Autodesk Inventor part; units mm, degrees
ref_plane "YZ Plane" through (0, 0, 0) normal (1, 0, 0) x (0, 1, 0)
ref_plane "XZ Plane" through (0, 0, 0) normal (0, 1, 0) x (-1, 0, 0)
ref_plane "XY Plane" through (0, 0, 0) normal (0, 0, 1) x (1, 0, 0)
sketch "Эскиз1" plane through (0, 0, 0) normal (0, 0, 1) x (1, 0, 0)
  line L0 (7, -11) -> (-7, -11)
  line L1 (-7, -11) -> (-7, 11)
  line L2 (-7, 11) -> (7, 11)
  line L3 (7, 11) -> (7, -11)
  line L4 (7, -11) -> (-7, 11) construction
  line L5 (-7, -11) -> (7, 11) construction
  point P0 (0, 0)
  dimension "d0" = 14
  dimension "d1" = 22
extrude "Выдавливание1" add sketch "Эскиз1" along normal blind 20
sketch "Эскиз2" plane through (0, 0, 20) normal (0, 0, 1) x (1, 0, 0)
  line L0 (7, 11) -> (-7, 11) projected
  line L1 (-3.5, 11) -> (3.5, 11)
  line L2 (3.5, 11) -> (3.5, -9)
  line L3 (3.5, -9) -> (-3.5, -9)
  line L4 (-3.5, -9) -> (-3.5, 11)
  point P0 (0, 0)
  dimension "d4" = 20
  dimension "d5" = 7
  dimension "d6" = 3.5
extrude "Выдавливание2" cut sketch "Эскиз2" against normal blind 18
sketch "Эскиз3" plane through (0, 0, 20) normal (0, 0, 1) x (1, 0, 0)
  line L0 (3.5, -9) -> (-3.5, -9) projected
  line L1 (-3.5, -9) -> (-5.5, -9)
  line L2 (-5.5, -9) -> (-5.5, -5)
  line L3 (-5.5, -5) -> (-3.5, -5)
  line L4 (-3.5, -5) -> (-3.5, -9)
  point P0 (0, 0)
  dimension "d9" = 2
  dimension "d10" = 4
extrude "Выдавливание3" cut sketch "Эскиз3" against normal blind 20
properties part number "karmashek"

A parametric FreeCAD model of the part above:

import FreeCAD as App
import Part
import Sketcher

V = App.Vector


def add_polygon(sketch, points):
    """Adds a closed chain of lines whose ends are joined by coincident constraints."""
    first, n = sketch.GeometryCount, len(points)
    for a, b in zip(points, points[1:] + points[:1]):
        sketch.addGeometry(Part.LineSegment(App.Vector(*a, 0), App.Vector(*b, 0)), False)
    for i in range(n):
        sketch.addConstraint(Sketcher.Constraint("Coincident", first + i, 2, first + (i + 1) % n, 1))

doc = App.newDocument("Part")
body = doc.addObject("PartDesign::Body", "Body")

# Sketch on XY plane
sketch1 = body.newObject("Sketcher::SketchObject", "Sketch")
sketch1.AttachmentSupport = (doc.getObject("XY_Plane"), [""])
sketch1.MapMode = "FlatFace"
add_polygon(sketch1, [(-7, -11), (7, -11), (7, 11), (-7, 11)])  # lines 0-3
sketch1.addConstraint(Sketcher.Constraint("Horizontal", 0))
sketch1.addConstraint(Sketcher.Constraint("Vertical", 1))
sketch1.addConstraint(Sketcher.Constraint("Horizontal", 2))
sketch1.addConstraint(Sketcher.Constraint("Vertical", 3))
sketch1.addConstraint(Sketcher.Constraint("Symmetric", 0, 2, 2, 2, -1, 1))
sketch1.addConstraint(Sketcher.Constraint("DistanceX", 0, 1, 0, 2, 14.0))
sketch1.addConstraint(Sketcher.Constraint("DistanceY", 1, 1, 1, 2, 22.0))
pad1 = body.newObject("PartDesign::Pad", "Pad")
pad1.Profile = sketch1
pad1.Length = 20

# Sketch on XY plane
sketch2 = body.newObject("Sketcher::SketchObject", "Sketch001")
sketch2.AttachmentSupport = (doc.getObject("XY_Plane"), [""])
sketch2.MapMode = "FlatFace"
sketch2.AttachmentOffset = App.Placement(V(0, 0, 20), App.Rotation())
add_polygon(sketch2, [(4, -9), (4, 11), (-4, 11), (-4, -9)])  # lines 0-3
sketch2.addConstraint(Sketcher.Constraint("Vertical", 0))
sketch2.addConstraint(Sketcher.Constraint("Horizontal", 1))
sketch2.addConstraint(Sketcher.Constraint("Vertical", 2))
sketch2.addConstraint(Sketcher.Constraint("Horizontal", 3))
sketch2.addConstraint(Sketcher.Constraint("DistanceX", 1, 2, 1, 1, 7.0))
sketch2.addConstraint(Sketcher.Constraint("DistanceY", 0, 1, 0, 2, 20.0))
sketch2.addConstraint(Sketcher.Constraint("DistanceX", -1, 1, 0, 2, 3.5))
sketch2.addConstraint(Sketcher.Constraint("DistanceY", -1, 1, 0, 2, 11.0))
pocket1 = body.newObject("PartDesign::Pocket", "Pocket")
pocket1.Profile = sketch2
pocket1.Length = 18

# Sketch on XY plane
sketch3 = body.newObject("Sketcher::SketchObject", "Sketch002")
sketch3.AttachmentSupport = (doc.getObject("XY_Plane"), [""])
sketch3.MapMode = "FlatFace"
sketch3.AttachmentOffset = App.Placement(V(0, 0, 20), App.Rotation())
add_polygon(sketch3, [(-5.5, -9), (-3.5, -9), (-3.5, -5), (-5.5, -5)])  # lines 0-3
sketch3.addConstraint(Sketcher.Constraint("Horizontal", 0))
sketch3.addConstraint(Sketcher.Constraint("Vertical", 1))
sketch3.addConstraint(Sketcher.Constraint("Horizontal", 2))
sketch3.addConstraint(Sketcher.Constraint("Vertical", 3))
sketch3.addConstraint(Sketcher.Constraint("DistanceX", 0, 1, 0, 2, 2.0))
sketch3.addConstraint(Sketcher.Constraint("DistanceY", 1, 1, 1, 2, 4.0))
sketch3.addConstraint(Sketcher.Constraint("DistanceY", 0, 2, -1, 1, 9.0))
sketch3.addConstraint(Sketcher.Constraint("DistanceX", 0, 2, -1, 1, 3.5))
pocket2 = body.newObject("PartDesign::Pocket", "Pocket001")
pocket2.Profile = sketch3
pocket2.Length = 20

doc.recompute()
